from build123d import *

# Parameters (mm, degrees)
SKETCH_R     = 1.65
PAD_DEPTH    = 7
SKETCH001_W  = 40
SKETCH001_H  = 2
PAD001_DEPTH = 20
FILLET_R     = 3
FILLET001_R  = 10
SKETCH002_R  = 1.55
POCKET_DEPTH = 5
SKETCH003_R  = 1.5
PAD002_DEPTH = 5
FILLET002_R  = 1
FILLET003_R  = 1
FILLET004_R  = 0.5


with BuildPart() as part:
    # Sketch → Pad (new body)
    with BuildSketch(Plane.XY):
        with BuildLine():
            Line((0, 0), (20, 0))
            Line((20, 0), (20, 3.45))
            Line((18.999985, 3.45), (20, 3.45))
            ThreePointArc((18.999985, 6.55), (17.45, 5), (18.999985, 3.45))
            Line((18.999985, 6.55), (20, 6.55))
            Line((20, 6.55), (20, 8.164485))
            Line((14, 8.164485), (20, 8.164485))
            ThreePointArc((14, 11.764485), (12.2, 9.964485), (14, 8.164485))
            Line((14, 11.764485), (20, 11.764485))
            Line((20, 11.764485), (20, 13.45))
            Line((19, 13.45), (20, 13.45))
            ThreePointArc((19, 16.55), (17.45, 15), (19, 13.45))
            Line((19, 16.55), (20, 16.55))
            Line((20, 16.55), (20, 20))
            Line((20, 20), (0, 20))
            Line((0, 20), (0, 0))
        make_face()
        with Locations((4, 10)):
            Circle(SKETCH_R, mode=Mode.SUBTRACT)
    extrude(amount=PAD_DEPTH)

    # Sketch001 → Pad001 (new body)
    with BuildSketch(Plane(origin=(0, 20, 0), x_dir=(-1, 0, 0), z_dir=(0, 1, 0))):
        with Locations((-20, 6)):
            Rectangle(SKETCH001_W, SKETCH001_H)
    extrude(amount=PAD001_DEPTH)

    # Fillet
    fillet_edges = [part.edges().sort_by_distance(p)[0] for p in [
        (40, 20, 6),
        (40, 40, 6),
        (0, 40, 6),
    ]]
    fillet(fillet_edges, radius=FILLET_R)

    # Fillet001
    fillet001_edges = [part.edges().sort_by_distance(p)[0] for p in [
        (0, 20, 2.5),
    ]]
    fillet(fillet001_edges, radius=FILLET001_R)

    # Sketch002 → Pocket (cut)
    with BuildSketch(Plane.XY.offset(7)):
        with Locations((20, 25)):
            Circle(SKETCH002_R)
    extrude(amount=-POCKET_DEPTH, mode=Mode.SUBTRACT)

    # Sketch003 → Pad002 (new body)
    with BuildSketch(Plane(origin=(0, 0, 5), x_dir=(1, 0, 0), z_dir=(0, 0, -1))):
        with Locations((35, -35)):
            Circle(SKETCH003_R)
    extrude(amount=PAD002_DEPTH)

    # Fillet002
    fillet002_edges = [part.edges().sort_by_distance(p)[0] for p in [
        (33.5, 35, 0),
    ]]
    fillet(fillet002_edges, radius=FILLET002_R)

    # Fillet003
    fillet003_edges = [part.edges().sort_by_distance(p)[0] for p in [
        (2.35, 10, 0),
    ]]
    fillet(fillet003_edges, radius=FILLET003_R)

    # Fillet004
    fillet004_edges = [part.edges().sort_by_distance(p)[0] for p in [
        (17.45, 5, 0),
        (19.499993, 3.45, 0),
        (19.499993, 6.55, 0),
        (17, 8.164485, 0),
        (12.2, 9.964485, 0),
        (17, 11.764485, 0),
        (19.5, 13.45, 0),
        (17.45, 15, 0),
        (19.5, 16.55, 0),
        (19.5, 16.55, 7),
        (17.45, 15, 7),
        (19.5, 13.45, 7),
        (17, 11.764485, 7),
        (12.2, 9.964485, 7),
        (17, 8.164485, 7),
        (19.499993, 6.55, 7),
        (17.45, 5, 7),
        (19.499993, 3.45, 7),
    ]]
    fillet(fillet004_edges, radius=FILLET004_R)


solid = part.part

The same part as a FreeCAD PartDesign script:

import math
import FreeCAD as App
import Part
import Sketcher

V = App.Vector
Q = App.Units.Quantity


def edges_at(feature, points):
    """Names of the edges that pass closest to the given points."""
    edges = feature.Shape.Edges
    near = lambda p: min(range(len(edges)), key=lambda i: edges[i].distToShape(Part.Vertex(*p))[0])
    return sorted({f"Edge{near(p) + 1}" for p in points})

doc = App.newDocument("Part")
body = doc.addObject("PartDesign::Body", "Body")

# Sketch on XY plane
sketch1 = body.newObject("Sketcher::SketchObject", "Sketch")
sketch1.AttachmentSupport = (doc.getObject("XY_Plane"), [""])
sketch1.MapMode = "FlatFace"
sketch1.addGeometry(Part.LineSegment(V(0, 0, 0), V(20, 0, 0)), False)
sketch1.addGeometry(Part.LineSegment(V(20, 0, 0), V(20, 3.5, 0)), False)
sketch1.addGeometry(Part.LineSegment(V(20, 3.5, 0), V(19, 3.5, 0)), False)
sketch1.addGeometry(Part.ArcOfCircle(Part.Circle(V(19, 5, 0), V(0, 0, 1), 1.6), math.radians(90), math.radians(270)), False)
sketch1.addGeometry(Part.LineSegment(V(19, 6.5, 0), V(20, 6.5, 0)), False)
sketch1.addGeometry(Part.LineSegment(V(20, 6.5, 0), V(20, 8.2, 0)), False)
sketch1.addGeometry(Part.LineSegment(V(20, 8.2, 0), V(14, 8.2, 0)), False)
sketch1.addGeometry(Part.ArcOfCircle(Part.Circle(V(14, 10, 0), V(0, 0, 1), 1.8), math.radians(90), math.radians(270)), False)
sketch1.addGeometry(Part.LineSegment(V(14, 11.8, 0), V(20, 11.8, 0)), False)
sketch1.addGeometry(Part.LineSegment(V(20, 11.8, 0), V(20, 13.4, 0)), False)
sketch1.addGeometry(Part.LineSegment(V(20, 13.4, 0), V(19, 13.4, 0)), False)
sketch1.addGeometry(Part.ArcOfCircle(Part.Circle(V(19, 15, 0), V(0, 0, 1), 1.6), math.radians(90), math.radians(270)), False)
sketch1.addGeometry(Part.LineSegment(V(19, 16.6, 0), V(20, 16.6, 0)), False)
sketch1.addGeometry(Part.LineSegment(V(20, 16.6, 0), V(20, 20, 0)), False)
sketch1.addGeometry(Part.LineSegment(V(20, 20, 0), V(0, 20, 0)), False)
sketch1.addGeometry(Part.LineSegment(V(0, 20, 0), V(0, 0, 0)), False)
sketch1.addGeometry(Part.Circle(V(4, 10, 0), V(0, 0, 1), 1.6), False)
sketch1.addConstraint(Sketcher.Constraint("Coincident", 0, 2, 1, 1))
sketch1.addConstraint(Sketcher.Constraint("Coincident", 1, 2, 2, 1))
sketch1.addConstraint(Sketcher.Constraint("Coincident", 2, 2, 3, 2))
sketch1.addConstraint(Sketcher.Constraint("Coincident", 3, 1, 4, 1))
sketch1.addConstraint(Sketcher.Constraint("Coincident", 4, 2, 5, 1))
sketch1.addConstraint(Sketcher.Constraint("Coincident", 5, 2, 6, 1))
sketch1.addConstraint(Sketcher.Constraint("Tangent", 6, 2, 7, 2))
sketch1.addConstraint(Sketcher.Constraint("Tangent", 7, 1, 8, 1))
sketch1.addConstraint(Sketcher.Constraint("Coincident", 8, 2, 9, 1))
sketch1.addConstraint(Sketcher.Constraint("Coincident", 9, 2, 10, 1))
sketch1.addConstraint(Sketcher.Constraint("Tangent", 10, 2, 11, 2))
sketch1.addConstraint(Sketcher.Constraint("Tangent", 11, 1, 12, 1))
sketch1.addConstraint(Sketcher.Constraint("Coincident", 12, 2, 13, 1))
sketch1.addConstraint(Sketcher.Constraint("Coincident", 13, 2, 14, 1))
sketch1.addConstraint(Sketcher.Constraint("Coincident", 14, 2, 15, 1))
sketch1.addConstraint(Sketcher.Constraint("Coincident", 15, 2, 0, 1))
sketch1.addConstraint(Sketcher.Constraint("Horizontal", 0))
sketch1.addConstraint(Sketcher.Constraint("Vertical", 1))
sketch1.addConstraint(Sketcher.Constraint("Horizontal", 2))
sketch1.addConstraint(Sketcher.Constraint("Horizontal", 4))
sketch1.addConstraint(Sketcher.Constraint("Vertical", 5))
sketch1.addConstraint(Sketcher.Constraint("Horizontal", 6))
sketch1.addConstraint(Sketcher.Constraint("Horizontal", 8))
sketch1.addConstraint(Sketcher.Constraint("Vertical", 9))
sketch1.addConstraint(Sketcher.Constraint("Horizontal", 10))
sketch1.addConstraint(Sketcher.Constraint("Horizontal", 12))
sketch1.addConstraint(Sketcher.Constraint("Vertical", 13))
sketch1.addConstraint(Sketcher.Constraint("Horizontal", 14))
sketch1.addConstraint(Sketcher.Constraint("Vertical", 15))
sketch1.addConstraint(Sketcher.Constraint("Coincident", 15, 2, -1, 1))
sketch1.addConstraint(Sketcher.Constraint("Equal", 3, 11))
sketch1.addConstraint(Sketcher.Constraint("Vertical", 3, 3, 11, 3))
sketch1.addConstraint(Sketcher.Constraint("Vertical", 2, 2, 3, 1))
sketch1.addConstraint(Sketcher.Constraint("Vertical", 1, 2, 4, 2))
sketch1.addConstraint(Sketcher.Constraint("Vertical", 5, 2, 8, 2))
sketch1.addConstraint(Sketcher.Constraint("Vertical", 9, 2, 12, 2))
sketch1.addConstraint(Sketcher.Constraint("Equal", 1, 13))
sketch1.addConstraint(Sketcher.Constraint("Equal", 14, 15))
sketch1.addConstraint(Sketcher.Constraint("Diameter", 16, Q("3.3 mm")))
sketch1.addConstraint(Sketcher.Constraint("Radius", 7, Q("1.8 mm")))
sketch1.addConstraint(Sketcher.Constraint("DistanceX", 0, 1, 0, 2, Q("20 mm")))
sketch1.addConstraint(Sketcher.Constraint("DistanceX", 6, 2, 6, 1, Q("6 mm")))
sketch1.addConstraint(Sketcher.Constraint("DistanceX", 10, 2, 10, 1, Q("1 mm")))
sketch1.addConstraint(Sketcher.Constraint("Radius", 3, Q("1.55 mm")))
sketch1.addConstraint(Sketcher.Constraint("DistanceY", -1, 1, 3, 3, Q("5 mm")))
sketch1.addConstraint(Sketcher.Constraint("DistanceX", -1, 1, 16, 3, Q("4 mm")))
sketch1.addConstraint(Sketcher.Constraint("DistanceY", -1, 1, 16, 3, Q("10 mm")))
sketch1.addConstraint(Sketcher.Constraint("DistanceX", 2, 2, 2, 1, Q("1.000015 mm")))
sketch1.addConstraint(Sketcher.Constraint("DistanceY", 5, 1, 5, 2, Q("1.614485 mm")))
pad1 = body.newObject("PartDesign::Pad", "Pad")
pad1.Profile = sketch1
pad1.Length = 7

# Sketch on XZ plane
sketch2 = body.newObject("Sketcher::SketchObject", "Sketch001")
sketch2.AttachmentSupport = (doc.getObject("XZ_Plane"), [""])
sketch2.MapMode = "FlatFace"
sketch2.AttachmentOffset = App.Placement(V(0, 0, -20), App.Rotation())
sketch2.addGeometry(Part.LineSegment(V(40, 7, 0), V(40, 5, 0)), False)
sketch2.addGeometry(Part.LineSegment(V(40, 5, 0), V(0, 5, 0)), False)
sketch2.addGeometry(Part.LineSegment(V(0, 5, 0), V(0, 7, 0)), False)
sketch2.addGeometry(Part.LineSegment(V(0, 7, 0), V(40, 7, 0)), False)
sketch2.addConstraint(Sketcher.Constraint("Coincident", 0, 2, 1, 1))
sketch2.addConstraint(Sketcher.Constraint("Coincident", 1, 2, 2, 1))
sketch2.addConstraint(Sketcher.Constraint("Coincident", 2, 2, 3, 1))
sketch2.addConstraint(Sketcher.Constraint("Coincident", 3, 2, 0, 1))
sketch2.addConstraint(Sketcher.Constraint("Vertical", 0))
sketch2.addConstraint(Sketcher.Constraint("Horizontal", 1))
sketch2.addConstraint(Sketcher.Constraint("Vertical", 2))
sketch2.addConstraint(Sketcher.Constraint("Horizontal", 3))
sketch2.addConstraint(Sketcher.Constraint("PointOnObject", 1, 2, -2))
sketch2.addConstraint(Sketcher.Constraint("DistanceX", 1, 2, 1, 1, Q("40 mm")))
sketch2.addConstraint(Sketcher.Constraint("DistanceY", 0, 2, 0, 1, Q("2 mm")))
sketch2.addConstraint(Sketcher.Constraint("DistanceY", -1, 1, 0, 2, Q("5 mm")))
pad2 = body.newObject("PartDesign::Pad", "Pad001")
pad2.Profile = sketch2
pad2.Length = 20
pad2.Reversed = True
doc.recompute()

fillet = body.newObject("PartDesign::Fillet", "Fillet")
fillet.Base = (pad2, edges_at(pad2, [(40, 20, 6), (40, 40, 6), (0, 40, 6)]))
fillet.Radius = 3
doc.recompute()

fillet2 = body.newObject("PartDesign::Fillet", "Fillet001")
fillet2.Base = (fillet, edges_at(fillet, [(0, 20, 2.5)]))
fillet2.Radius = 10

# Sketch on XY plane
sketch3 = body.newObject("Sketcher::SketchObject", "Sketch002")
sketch3.AttachmentSupport = (doc.getObject("XY_Plane"), [""])
sketch3.MapMode = "FlatFace"
sketch3.AttachmentOffset = App.Placement(V(0, 0, 7), App.Rotation())
sketch3.addGeometry(Part.Circle(V(20, 25, 0), V(0, 0, 1), 1.6), False)
sketch3.addConstraint(Sketcher.Constraint("Diameter", 0, Q("3.1 mm")))
sketch3.addConstraint(Sketcher.Constraint("DistanceX", -1, 1, 0, 3, Q("20 mm")))
sketch3.addConstraint(Sketcher.Constraint("DistanceY", -1, 1, 0, 3, Q("25 mm")))
pocket1 = body.newObject("PartDesign::Pocket", "Pocket")
pocket1.Profile = sketch3
pocket1.Length = 5

# Sketch on XY plane
sketch4 = body.newObject("Sketcher::SketchObject", "Sketch003")
sketch4.AttachmentSupport = (doc.getObject("XY_Plane"), [""])
sketch4.MapMode = "FlatFace"
sketch4.AttachmentOffset = App.Placement(V(0, 0, 5), App.Rotation())
sketch4.addGeometry(Part.Circle(V(35, 35, 0), V(0, 0, 1), 1.5), False)
sketch4.addConstraint(Sketcher.Constraint("Diameter", 0, Q("3 mm")))
sketch4.addConstraint(Sketcher.Constraint("DistanceX", -1, 1, 0, 3, Q("35 mm")))
sketch4.addConstraint(Sketcher.Constraint("DistanceY", -1, 1, 0, 3, Q("35 mm")))
pad3 = body.newObject("PartDesign::Pad", "Pad002")
pad3.Profile = sketch4
pad3.Length = 5
pad3.Reversed = True
doc.recompute()

fillet3 = body.newObject("PartDesign::Fillet", "Fillet002")
fillet3.Base = (pad3, edges_at(pad3, [(33.5, 35, 0)]))
fillet3.Radius = 1
doc.recompute()

fillet4 = body.newObject("PartDesign::Fillet", "Fillet003")
fillet4.Base = (fillet3, edges_at(fillet3, [(2.35, 10, 0)]))
fillet4.Radius = 1
doc.recompute()

fillet5 = body.newObject("PartDesign::Fillet", "Fillet004")
fillet5.Base = (fillet4, edges_at(fillet4, [
    (17.45, 5, 0),
    (19.5, 3.45, 0),
    (19.5, 6.55, 0),
    (17, 8.164, 0),
    (12.2, 9.964, 0),
    (17, 11.764, 0),
    (19.5, 13.45, 0),
    (17.45, 15, 0),
    (19.5, 16.55, 0),
    (19.5, 16.55, 7),
    (17.45, 15, 7),
    (19.5, 13.45, 7),
    (17, 11.764, 7),
    (12.2, 9.964, 7),
    (17, 8.164, 7),
    (19.5, 6.55, 7),
    (17.45, 5, 7),
    (19.5, 3.45, 7),
]))
fillet5.Radius = 0.5

doc.recompute()
